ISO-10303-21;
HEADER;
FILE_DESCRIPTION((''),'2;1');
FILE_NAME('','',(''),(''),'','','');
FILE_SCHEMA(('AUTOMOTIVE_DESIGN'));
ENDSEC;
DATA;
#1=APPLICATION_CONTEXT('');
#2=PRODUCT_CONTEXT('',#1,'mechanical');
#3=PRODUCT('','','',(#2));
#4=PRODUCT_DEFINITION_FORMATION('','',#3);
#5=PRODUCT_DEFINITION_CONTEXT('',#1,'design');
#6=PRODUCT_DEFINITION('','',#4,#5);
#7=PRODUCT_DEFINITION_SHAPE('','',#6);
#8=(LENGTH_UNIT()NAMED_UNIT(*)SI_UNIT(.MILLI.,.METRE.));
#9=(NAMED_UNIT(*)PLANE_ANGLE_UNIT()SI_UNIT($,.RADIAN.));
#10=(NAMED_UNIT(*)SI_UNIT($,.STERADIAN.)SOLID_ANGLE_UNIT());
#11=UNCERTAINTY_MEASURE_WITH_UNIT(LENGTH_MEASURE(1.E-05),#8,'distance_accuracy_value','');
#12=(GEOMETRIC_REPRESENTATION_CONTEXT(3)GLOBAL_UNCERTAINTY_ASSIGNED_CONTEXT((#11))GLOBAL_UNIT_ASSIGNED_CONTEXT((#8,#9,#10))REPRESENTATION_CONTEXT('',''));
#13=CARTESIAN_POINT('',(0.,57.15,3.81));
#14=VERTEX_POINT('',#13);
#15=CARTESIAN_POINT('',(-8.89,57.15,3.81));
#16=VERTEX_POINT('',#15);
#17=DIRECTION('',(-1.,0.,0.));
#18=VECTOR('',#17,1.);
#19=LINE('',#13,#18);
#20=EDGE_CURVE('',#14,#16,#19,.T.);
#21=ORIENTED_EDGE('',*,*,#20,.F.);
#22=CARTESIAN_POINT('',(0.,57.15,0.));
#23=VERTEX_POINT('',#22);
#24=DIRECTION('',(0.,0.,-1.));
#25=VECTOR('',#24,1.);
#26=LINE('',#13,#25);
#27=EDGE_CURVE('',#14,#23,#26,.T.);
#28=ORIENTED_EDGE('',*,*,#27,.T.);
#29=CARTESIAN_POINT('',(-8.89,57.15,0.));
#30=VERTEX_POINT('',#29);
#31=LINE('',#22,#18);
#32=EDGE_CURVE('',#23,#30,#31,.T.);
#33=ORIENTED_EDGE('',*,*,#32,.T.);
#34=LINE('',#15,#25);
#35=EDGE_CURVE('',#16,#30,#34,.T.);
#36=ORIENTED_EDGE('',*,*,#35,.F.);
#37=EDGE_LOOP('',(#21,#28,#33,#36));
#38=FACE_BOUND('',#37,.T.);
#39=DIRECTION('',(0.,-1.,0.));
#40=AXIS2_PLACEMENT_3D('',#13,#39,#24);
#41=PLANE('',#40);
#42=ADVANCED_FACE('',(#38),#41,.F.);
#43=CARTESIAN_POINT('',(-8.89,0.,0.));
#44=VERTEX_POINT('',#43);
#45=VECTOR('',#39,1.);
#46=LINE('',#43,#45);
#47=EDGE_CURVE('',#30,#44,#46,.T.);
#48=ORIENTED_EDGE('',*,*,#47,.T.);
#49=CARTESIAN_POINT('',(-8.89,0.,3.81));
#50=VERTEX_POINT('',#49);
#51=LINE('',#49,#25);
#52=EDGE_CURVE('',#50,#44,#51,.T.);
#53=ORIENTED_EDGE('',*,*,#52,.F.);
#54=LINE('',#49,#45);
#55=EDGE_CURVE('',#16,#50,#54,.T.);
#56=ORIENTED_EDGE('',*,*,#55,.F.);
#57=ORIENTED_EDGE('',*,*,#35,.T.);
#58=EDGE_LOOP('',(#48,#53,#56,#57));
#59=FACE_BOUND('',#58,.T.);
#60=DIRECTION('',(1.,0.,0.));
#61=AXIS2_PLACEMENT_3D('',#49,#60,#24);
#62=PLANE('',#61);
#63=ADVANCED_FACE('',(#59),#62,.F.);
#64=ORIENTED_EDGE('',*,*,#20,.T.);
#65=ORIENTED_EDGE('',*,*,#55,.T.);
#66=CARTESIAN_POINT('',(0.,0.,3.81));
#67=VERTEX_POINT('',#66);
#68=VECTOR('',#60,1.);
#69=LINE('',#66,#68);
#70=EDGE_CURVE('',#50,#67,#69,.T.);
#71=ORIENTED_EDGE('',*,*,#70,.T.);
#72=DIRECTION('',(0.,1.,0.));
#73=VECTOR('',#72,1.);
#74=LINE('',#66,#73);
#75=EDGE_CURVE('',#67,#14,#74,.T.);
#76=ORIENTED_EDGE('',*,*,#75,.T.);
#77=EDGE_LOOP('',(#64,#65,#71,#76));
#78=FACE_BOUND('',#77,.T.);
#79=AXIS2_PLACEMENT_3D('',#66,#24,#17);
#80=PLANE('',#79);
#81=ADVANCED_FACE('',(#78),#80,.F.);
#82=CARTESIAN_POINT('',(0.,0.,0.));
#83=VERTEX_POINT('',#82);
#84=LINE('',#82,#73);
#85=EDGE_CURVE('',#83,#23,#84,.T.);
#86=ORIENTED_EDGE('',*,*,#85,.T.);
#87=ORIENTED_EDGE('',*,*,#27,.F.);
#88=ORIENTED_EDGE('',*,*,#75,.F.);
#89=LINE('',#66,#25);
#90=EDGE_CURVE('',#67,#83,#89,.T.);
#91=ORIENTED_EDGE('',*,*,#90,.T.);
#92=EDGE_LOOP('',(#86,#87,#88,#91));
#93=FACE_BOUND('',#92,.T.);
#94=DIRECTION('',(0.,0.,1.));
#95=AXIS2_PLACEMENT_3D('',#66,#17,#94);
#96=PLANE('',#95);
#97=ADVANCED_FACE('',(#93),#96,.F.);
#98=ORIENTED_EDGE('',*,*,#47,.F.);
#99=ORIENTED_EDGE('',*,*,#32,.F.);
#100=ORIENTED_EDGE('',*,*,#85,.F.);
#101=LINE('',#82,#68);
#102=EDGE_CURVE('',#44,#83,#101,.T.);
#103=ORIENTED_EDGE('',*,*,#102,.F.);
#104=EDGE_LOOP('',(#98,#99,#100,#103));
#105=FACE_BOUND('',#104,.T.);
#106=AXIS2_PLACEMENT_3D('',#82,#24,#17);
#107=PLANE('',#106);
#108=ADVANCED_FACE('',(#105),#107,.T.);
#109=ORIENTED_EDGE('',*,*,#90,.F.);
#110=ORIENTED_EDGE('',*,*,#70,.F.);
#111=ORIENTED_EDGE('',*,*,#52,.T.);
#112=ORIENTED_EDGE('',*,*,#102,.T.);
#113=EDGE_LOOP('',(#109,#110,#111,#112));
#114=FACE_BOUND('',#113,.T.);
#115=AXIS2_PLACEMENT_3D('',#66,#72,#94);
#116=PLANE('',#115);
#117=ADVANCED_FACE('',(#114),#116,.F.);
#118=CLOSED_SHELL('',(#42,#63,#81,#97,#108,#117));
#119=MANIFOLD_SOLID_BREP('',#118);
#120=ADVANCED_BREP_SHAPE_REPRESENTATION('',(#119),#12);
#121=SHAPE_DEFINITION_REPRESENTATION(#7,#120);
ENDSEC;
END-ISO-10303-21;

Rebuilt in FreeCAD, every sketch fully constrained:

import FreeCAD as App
import Part
import Sketcher

V = App.Vector
Q = App.Units.Quantity

doc = App.newDocument("Part")
body = doc.addObject("PartDesign::Body", "Body")

# Sketch on XY plane
sketch1 = body.newObject("Sketcher::SketchObject", "Sketch")
sketch1.AttachmentSupport = (doc.getObject("XY_Plane"), [""])
sketch1.MapMode = "FlatFace"
sketch1.addGeometry([
    Part.LineSegment(V(-9, 0, 0), V(0, 0, 0)),
    Part.LineSegment(V(0, 0, 0), V(0, 57, 0)),
    Part.LineSegment(V(0, 57, 0), V(-9, 57, 0)),
    Part.LineSegment(V(-9, 57, 0), V(-9, 0, 0)),
], False)
sketch1.addConstraint([
    Sketcher.Constraint("Coincident", 0, 2, 1, 1),
    Sketcher.Constraint("Coincident", 1, 2, 2, 1),
    Sketcher.Constraint("Coincident", 2, 2, 3, 1),
    Sketcher.Constraint("Coincident", 3, 2, 0, 1),
    Sketcher.Constraint("Horizontal", 0),
    Sketcher.Constraint("Vertical", 1),
    Sketcher.Constraint("Horizontal", 2),
    Sketcher.Constraint("Vertical", 3),
    Sketcher.Constraint("Coincident", 0, 2, -1, 1),
    Sketcher.Constraint("DistanceX", 0, 1, 0, 2, Q("0.35 in")),
    Sketcher.Constraint("DistanceY", 1, 1, 1, 2, Q("2.25 in")),
])
pad1 = body.newObject("PartDesign::Pad", "Pad")
pad1.Profile = sketch1
pad1.Length = Q("0.15 in")

doc.recompute()
